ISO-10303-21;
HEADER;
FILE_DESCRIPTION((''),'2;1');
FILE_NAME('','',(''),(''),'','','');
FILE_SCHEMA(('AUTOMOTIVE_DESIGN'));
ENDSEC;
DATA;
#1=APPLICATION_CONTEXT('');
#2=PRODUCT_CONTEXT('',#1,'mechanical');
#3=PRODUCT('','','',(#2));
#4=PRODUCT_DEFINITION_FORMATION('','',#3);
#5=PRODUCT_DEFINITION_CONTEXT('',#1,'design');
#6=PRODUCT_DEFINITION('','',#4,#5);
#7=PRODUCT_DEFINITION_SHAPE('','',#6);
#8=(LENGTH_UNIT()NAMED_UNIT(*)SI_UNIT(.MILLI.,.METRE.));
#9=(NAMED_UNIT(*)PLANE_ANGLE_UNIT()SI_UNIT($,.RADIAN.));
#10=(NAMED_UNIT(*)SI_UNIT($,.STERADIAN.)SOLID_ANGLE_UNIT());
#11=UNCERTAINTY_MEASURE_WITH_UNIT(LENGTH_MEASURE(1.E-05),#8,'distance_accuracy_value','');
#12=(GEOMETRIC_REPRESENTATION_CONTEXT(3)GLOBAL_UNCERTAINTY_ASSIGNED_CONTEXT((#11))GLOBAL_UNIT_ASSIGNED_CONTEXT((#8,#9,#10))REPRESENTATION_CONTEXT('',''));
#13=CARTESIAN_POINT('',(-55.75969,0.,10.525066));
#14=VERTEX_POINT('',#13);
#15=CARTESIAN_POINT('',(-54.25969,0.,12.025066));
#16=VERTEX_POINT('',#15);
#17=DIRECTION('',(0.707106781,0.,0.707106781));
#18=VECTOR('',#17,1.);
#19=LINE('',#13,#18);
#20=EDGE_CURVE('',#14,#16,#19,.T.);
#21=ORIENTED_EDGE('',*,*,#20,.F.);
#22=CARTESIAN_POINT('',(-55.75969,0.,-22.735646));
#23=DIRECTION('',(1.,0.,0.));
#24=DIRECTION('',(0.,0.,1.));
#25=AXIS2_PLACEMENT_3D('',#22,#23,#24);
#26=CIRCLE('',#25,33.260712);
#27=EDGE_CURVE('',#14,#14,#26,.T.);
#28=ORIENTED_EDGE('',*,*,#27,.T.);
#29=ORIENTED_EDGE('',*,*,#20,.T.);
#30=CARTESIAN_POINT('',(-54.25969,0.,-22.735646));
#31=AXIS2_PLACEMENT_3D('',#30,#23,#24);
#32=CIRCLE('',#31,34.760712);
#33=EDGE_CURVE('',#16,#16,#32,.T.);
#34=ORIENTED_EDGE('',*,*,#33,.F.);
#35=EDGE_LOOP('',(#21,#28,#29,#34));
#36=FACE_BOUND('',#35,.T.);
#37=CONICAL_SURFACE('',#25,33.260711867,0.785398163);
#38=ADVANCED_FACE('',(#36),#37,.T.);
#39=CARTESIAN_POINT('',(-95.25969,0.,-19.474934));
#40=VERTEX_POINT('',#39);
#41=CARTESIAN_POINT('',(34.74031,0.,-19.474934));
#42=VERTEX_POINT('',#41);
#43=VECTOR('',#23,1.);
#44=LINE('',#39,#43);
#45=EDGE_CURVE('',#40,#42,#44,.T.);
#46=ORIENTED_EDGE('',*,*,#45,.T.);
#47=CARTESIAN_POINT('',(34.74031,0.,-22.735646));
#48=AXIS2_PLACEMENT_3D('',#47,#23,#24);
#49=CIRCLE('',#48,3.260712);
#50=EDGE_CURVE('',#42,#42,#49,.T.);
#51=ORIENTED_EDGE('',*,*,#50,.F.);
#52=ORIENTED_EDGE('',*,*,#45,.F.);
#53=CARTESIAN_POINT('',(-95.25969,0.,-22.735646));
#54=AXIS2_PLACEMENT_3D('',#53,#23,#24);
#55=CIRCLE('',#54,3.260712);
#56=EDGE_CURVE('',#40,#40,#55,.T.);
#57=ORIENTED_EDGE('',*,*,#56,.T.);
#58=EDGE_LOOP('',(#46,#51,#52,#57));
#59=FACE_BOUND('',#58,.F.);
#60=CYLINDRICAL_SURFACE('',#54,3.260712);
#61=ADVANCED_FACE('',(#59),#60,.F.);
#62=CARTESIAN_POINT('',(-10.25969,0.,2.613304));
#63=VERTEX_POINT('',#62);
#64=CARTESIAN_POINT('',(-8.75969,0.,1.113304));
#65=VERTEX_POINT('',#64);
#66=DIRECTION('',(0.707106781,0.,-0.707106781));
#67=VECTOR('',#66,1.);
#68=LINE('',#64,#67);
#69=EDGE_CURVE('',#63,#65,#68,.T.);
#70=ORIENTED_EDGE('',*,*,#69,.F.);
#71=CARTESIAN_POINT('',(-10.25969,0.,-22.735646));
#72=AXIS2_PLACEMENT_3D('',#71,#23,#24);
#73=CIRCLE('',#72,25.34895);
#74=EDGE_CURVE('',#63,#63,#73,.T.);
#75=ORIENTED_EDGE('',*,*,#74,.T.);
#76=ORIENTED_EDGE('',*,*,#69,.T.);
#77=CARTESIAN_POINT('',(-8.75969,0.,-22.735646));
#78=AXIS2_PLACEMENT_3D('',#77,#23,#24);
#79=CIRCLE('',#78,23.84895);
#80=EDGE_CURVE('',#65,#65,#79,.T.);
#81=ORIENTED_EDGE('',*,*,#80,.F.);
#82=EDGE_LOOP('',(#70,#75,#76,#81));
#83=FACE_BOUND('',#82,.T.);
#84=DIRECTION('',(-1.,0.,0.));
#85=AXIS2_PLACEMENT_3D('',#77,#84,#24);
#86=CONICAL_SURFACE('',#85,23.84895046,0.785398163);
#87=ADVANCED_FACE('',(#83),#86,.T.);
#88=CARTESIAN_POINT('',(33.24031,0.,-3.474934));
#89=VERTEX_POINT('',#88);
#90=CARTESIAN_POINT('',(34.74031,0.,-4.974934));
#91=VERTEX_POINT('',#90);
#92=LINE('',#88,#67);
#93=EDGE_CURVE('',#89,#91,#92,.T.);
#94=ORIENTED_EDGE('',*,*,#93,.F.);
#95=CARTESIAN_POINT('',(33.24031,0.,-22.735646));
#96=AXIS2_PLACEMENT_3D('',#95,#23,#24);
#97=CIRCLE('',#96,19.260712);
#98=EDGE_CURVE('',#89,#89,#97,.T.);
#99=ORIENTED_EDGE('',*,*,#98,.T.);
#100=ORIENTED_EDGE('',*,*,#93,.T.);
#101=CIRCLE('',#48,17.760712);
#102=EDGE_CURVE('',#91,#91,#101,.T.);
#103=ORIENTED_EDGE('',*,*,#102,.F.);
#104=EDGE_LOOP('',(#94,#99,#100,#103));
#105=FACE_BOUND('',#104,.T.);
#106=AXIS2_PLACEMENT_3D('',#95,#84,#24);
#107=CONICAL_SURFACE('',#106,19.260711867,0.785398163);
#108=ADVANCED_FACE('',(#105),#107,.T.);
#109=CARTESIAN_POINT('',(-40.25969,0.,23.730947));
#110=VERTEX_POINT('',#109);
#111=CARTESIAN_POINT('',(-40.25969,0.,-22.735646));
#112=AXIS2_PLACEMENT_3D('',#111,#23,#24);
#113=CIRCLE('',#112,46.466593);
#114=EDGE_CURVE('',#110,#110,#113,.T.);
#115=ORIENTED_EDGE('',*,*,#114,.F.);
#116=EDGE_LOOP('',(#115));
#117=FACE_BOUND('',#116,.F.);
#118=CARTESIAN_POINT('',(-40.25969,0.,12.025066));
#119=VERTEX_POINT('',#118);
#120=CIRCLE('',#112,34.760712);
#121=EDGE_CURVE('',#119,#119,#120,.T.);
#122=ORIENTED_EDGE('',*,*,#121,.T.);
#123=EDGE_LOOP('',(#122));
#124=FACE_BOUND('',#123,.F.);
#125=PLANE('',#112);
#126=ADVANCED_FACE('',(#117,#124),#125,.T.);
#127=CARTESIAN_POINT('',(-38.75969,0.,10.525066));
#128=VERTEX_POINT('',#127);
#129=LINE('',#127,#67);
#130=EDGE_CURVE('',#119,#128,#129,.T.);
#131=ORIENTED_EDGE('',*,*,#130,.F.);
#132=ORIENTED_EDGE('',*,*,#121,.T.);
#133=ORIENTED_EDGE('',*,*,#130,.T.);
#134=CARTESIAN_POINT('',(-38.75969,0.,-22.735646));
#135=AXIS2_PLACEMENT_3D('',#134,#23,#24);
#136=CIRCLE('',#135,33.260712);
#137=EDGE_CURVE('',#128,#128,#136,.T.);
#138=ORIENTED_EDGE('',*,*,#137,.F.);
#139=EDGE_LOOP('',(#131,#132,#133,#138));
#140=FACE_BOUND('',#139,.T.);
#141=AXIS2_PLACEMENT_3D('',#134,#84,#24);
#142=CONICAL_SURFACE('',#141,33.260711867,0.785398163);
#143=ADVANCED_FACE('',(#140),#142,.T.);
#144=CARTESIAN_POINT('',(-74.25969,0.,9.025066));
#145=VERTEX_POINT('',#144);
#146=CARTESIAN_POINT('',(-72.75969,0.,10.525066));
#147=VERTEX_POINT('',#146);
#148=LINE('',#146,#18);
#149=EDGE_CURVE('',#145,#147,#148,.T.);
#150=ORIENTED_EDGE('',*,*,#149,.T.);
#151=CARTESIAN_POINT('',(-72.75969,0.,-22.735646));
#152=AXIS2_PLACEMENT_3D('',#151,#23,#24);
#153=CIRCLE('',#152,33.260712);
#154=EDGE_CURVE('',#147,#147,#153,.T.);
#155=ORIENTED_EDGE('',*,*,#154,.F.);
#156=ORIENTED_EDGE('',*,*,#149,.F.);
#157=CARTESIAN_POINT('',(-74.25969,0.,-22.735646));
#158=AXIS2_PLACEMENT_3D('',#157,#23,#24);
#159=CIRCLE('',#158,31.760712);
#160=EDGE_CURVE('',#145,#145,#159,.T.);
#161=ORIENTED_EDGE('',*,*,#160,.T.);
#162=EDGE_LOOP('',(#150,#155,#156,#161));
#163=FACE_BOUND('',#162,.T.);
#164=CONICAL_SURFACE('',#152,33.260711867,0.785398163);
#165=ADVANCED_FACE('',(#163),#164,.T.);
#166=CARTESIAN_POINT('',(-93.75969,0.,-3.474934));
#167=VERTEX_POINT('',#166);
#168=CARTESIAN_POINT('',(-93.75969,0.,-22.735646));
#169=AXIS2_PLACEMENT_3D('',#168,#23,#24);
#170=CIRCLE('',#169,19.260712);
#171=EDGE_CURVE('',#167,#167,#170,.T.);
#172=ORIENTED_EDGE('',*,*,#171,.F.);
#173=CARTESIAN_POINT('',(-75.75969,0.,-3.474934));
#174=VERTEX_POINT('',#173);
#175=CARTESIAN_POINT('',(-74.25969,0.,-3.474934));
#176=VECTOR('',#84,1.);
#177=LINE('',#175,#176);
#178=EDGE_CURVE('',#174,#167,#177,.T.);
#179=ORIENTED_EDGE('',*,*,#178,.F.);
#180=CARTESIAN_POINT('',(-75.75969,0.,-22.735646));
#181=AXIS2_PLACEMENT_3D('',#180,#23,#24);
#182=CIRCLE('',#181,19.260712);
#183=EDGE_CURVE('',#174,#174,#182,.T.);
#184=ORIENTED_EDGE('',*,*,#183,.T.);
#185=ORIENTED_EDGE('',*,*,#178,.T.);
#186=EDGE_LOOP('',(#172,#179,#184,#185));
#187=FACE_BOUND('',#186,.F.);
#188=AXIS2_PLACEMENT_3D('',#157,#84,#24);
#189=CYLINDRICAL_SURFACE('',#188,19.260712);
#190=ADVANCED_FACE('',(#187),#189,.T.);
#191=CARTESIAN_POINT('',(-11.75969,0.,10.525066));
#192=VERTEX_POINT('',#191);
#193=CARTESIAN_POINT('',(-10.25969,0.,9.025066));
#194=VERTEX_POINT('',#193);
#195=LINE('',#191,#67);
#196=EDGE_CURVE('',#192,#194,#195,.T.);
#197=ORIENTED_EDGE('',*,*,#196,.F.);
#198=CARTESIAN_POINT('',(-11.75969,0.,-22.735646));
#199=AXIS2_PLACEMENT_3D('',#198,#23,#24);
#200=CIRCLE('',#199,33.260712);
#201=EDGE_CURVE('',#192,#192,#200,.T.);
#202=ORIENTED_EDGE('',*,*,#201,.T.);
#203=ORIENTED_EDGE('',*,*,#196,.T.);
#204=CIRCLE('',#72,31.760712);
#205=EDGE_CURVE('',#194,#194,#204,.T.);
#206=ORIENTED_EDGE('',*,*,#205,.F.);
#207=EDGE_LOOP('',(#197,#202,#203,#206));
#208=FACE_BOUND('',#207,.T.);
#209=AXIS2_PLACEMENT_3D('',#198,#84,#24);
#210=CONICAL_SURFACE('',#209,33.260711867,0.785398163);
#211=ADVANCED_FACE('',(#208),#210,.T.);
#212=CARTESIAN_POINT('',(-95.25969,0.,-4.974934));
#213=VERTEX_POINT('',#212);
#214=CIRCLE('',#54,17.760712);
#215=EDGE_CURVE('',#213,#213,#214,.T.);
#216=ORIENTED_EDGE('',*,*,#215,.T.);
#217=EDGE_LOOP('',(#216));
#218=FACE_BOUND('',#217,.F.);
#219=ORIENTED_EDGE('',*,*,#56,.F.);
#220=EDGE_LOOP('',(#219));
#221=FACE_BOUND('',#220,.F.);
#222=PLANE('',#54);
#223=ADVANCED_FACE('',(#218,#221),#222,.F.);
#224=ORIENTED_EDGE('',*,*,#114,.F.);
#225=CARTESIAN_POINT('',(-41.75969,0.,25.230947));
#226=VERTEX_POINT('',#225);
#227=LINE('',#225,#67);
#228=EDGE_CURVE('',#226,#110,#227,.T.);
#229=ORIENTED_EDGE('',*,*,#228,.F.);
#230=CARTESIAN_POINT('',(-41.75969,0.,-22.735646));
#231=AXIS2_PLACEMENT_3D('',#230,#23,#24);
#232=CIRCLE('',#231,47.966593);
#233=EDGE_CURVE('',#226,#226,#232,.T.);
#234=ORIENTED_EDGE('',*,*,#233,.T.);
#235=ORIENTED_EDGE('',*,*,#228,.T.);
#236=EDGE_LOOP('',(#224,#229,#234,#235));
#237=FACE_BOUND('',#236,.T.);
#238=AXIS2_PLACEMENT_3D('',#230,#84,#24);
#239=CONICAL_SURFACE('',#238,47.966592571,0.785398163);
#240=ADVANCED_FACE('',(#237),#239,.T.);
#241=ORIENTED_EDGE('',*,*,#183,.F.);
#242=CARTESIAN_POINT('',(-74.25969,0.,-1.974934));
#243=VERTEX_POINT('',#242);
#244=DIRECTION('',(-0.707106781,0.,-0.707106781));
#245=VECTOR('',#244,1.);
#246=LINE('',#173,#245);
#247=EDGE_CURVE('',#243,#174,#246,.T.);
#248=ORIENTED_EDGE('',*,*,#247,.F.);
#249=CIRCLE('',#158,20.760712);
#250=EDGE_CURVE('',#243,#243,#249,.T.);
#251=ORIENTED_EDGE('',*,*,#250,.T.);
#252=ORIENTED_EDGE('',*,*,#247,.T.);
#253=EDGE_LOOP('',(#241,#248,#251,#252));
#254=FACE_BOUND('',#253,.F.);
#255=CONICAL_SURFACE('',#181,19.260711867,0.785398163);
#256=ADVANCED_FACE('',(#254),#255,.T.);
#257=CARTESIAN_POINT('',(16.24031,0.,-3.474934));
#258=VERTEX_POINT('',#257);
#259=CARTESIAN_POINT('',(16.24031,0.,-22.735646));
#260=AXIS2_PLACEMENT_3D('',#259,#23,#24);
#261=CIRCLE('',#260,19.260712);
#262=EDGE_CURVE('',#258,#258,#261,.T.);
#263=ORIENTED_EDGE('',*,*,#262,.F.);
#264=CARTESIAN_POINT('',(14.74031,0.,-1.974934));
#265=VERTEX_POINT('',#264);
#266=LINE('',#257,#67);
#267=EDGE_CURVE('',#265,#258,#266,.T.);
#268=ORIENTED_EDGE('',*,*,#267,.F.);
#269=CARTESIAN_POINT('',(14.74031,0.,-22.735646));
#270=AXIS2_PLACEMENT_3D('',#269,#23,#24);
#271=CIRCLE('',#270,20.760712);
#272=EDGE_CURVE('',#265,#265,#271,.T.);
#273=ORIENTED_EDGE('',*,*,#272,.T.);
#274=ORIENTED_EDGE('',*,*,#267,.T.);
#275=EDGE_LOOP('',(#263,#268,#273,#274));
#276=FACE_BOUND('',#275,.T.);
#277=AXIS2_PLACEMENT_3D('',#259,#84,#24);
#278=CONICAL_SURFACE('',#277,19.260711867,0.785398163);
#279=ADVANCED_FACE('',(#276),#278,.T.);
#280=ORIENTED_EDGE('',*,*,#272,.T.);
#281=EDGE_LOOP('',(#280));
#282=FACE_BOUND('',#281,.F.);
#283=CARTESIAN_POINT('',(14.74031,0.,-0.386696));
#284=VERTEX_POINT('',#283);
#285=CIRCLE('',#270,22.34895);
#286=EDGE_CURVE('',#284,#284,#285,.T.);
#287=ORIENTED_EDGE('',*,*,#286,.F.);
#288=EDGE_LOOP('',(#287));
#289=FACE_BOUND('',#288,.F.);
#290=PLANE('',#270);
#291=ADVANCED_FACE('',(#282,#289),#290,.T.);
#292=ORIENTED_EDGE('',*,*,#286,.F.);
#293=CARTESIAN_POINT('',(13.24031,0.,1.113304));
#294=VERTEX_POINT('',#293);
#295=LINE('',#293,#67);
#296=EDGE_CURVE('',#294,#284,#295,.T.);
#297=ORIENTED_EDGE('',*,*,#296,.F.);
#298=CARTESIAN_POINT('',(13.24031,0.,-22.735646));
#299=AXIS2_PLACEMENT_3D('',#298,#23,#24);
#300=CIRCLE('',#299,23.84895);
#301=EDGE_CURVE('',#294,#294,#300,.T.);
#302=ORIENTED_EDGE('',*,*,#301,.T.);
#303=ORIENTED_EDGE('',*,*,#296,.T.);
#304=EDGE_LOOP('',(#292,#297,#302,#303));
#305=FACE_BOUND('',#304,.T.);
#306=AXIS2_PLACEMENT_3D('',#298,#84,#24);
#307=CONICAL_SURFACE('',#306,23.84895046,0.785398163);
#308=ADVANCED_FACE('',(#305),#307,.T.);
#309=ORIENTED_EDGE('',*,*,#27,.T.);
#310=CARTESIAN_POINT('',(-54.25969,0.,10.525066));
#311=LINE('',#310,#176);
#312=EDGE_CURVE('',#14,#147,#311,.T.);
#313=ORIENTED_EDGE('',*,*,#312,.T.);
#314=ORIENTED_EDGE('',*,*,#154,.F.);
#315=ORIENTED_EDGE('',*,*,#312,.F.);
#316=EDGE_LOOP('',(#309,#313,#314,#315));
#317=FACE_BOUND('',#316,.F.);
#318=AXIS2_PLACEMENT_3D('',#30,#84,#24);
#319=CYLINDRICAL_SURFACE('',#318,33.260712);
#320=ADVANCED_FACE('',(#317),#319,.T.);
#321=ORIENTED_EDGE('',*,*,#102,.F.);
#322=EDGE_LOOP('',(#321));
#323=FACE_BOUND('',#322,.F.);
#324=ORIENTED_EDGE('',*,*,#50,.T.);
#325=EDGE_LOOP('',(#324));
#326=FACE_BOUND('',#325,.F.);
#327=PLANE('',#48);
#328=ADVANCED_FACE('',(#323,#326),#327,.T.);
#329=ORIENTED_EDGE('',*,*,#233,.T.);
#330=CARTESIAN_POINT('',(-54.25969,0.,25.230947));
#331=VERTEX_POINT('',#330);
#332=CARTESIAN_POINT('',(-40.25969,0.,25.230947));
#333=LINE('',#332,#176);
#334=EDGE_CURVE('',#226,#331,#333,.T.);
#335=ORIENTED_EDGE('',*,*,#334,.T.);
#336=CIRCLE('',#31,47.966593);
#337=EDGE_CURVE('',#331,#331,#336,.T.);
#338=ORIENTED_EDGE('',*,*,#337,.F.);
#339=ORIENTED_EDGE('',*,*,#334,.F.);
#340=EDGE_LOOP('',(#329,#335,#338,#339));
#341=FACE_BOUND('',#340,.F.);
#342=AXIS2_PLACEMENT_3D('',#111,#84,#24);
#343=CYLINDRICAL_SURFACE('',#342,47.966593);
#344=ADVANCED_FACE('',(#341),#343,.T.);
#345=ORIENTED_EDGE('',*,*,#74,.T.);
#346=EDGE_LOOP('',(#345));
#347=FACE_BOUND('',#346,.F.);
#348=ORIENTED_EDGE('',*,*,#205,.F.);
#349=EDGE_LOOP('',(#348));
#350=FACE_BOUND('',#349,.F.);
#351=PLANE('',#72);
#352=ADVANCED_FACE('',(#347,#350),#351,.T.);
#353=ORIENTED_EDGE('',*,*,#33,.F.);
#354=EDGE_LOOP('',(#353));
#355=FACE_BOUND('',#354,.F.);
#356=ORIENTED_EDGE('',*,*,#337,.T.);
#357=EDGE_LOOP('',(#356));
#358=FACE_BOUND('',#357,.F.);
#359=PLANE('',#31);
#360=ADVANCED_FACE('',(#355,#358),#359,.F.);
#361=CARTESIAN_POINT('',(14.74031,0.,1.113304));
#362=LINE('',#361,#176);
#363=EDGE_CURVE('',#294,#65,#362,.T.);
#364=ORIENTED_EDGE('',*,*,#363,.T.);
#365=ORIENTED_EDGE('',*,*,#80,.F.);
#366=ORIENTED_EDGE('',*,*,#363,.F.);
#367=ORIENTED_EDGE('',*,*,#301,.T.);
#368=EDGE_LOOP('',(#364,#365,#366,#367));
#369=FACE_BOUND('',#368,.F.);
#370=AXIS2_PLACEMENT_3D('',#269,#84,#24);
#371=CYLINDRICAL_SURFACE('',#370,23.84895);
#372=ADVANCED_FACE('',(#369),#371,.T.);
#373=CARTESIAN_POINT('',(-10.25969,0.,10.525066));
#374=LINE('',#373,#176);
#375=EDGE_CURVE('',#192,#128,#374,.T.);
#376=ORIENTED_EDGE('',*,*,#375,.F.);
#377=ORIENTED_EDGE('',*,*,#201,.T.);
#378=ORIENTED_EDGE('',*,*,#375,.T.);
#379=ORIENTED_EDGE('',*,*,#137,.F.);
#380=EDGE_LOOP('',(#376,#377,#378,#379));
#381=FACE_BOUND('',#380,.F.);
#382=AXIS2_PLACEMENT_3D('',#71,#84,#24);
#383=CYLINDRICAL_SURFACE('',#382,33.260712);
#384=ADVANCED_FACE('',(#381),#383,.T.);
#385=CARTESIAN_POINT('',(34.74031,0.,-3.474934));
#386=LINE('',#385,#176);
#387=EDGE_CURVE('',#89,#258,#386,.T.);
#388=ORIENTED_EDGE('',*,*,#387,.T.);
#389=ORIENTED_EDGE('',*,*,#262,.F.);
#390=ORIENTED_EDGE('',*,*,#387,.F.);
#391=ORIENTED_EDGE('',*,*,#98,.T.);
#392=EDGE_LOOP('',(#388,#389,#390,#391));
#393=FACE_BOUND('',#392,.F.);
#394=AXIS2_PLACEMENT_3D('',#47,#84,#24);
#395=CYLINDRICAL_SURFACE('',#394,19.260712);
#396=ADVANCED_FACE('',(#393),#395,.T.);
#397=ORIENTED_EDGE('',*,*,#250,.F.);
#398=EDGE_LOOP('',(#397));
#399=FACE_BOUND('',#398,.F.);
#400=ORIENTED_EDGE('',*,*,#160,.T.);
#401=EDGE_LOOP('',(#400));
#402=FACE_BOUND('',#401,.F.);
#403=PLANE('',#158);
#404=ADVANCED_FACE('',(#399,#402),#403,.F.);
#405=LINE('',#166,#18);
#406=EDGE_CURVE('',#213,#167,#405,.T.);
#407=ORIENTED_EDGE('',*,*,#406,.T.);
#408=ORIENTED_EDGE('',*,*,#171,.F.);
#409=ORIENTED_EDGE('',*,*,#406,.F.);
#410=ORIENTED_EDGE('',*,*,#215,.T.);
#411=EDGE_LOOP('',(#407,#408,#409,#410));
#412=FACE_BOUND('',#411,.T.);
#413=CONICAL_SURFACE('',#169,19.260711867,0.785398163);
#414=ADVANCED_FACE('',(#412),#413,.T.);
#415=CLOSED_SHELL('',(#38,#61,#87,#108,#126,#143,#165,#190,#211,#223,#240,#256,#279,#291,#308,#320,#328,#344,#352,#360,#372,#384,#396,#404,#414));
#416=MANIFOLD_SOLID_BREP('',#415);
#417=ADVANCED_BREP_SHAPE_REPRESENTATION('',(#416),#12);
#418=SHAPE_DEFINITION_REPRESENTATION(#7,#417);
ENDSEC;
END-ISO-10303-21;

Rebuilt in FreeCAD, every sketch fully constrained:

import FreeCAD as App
import Part
import Sketcher

V = App.Vector


def edges_at(feature, points):
    """Names of the edges that pass closest to the given points."""
    edges = feature.Shape.Edges
    near = lambda p: min(range(len(edges)), key=lambda i: edges[i].distToShape(Part.Vertex(*p))[0])
    return sorted({f"Edge{near(p) + 1}" for p in points})

doc = App.newDocument("Part")
body = doc.addObject("PartDesign::Body", "Body")

# Sketch on XZ plane
sketch1 = body.newObject("Sketcher::SketchObject", "Sketch")
sketch1.AttachmentSupport = (doc.getObject("XZ_Plane"), [""])
sketch1.MapMode = "FlatFace"
sketch1.addGeometry([
    Part.LineSegment(V(-95.3, -3.5, 0), V(-95.3, -19.5, 0)),  # 0
    Part.LineSegment(V(-95.3, -19.5, 0), V(34.7, -19.5, 0)),  # 1
    Part.LineSegment(V(34.7, -19.5, 0), V(34.7, -3.5, 0)),  # 2
    Part.LineSegment(V(34.7, -3.5, 0), V(14.7, -3.5, 0)),  # 3
    Part.LineSegment(V(14.7, -3.5, 0), V(14.7, 1.1, 0)),  # 4
    Part.LineSegment(V(14.7, 1.1, 0), V(-10.3, 1.1, 0)),  # 5
    Part.LineSegment(V(-10.3, 1.1, 0), V(-10.3, 10.5, 0)),  # 6
    Part.LineSegment(V(-10.3, 10.5, 0), V(-40.3, 10.5, 0)),  # 7
    Part.LineSegment(V(-40.3, 10.5, 0), V(-40.3, 25.2, 0)),  # 8
    Part.LineSegment(V(-40.3, 25.2, 0), V(-54.3, 25.2, 0)),  # 9
    Part.LineSegment(V(-54.3, 25.2, 0), V(-54.3, 10.5, 0)),  # 10
    Part.LineSegment(V(-54.3, 10.5, 0), V(-74.3, 10.5, 0)),  # 11
    Part.LineSegment(V(-74.3, 10.5, 0), V(-74.3, -3.5, 0)),  # 12
    Part.LineSegment(V(-74.3, -3.5, 0), V(-95.3, -3.5, 0)),  # 13
], False)
sketch1.addGeometry(Part.LineSegment(V(-95.3, -22.7, 0), V(34.7, -22.7, 0)), True)  # axis
sketch1.addConstraint([
    Sketcher.Constraint("Coincident", 0, 2, 1, 1),
    Sketcher.Constraint("Coincident", 1, 2, 2, 1),
    Sketcher.Constraint("Coincident", 2, 2, 3, 1),
    Sketcher.Constraint("Coincident", 3, 2, 4, 1),
    Sketcher.Constraint("Coincident", 4, 2, 5, 1),
    Sketcher.Constraint("Coincident", 5, 2, 6, 1),
    Sketcher.Constraint("Coincident", 6, 2, 7, 1),
    Sketcher.Constraint("Coincident", 7, 2, 8, 1),
    Sketcher.Constraint("Coincident", 8, 2, 9, 1),
    Sketcher.Constraint("Coincident", 9, 2, 10, 1),
    Sketcher.Constraint("Coincident", 10, 2, 11, 1),
    Sketcher.Constraint("Coincident", 11, 2, 12, 1),
    Sketcher.Constraint("Coincident", 12, 2, 13, 1),
    Sketcher.Constraint("Coincident", 13, 2, 0, 1),
    Sketcher.Constraint("Vertical", 0),
    Sketcher.Constraint("Horizontal", 1),
    Sketcher.Constraint("Vertical", 2),
    Sketcher.Constraint("Horizontal", 3),
    Sketcher.Constraint("Vertical", 4),
    Sketcher.Constraint("Horizontal", 5),
    Sketcher.Constraint("Vertical", 6),
    Sketcher.Constraint("Horizontal", 7),
    Sketcher.Constraint("Vertical", 8),
    Sketcher.Constraint("Horizontal", 9),
    Sketcher.Constraint("Vertical", 10),
    Sketcher.Constraint("Horizontal", 11),
    Sketcher.Constraint("Vertical", 12),
    Sketcher.Constraint("Horizontal", 13),
    Sketcher.Constraint("Horizontal", 14),
    Sketcher.Constraint("Horizontal", 7, 2, 10, 2),
    Sketcher.Constraint("Horizontal", 3, 2, 12, 2),
    Sketcher.Constraint("Vertical", 13, 2, 14, 1),
    Sketcher.Constraint("Vertical", 2, 2, 14, 2),
    Sketcher.Constraint("Equal", 3, 11),
    Sketcher.Constraint("Equal", 9, 12),
    Sketcher.Constraint("DistanceX", 1, 1, 1, 2, 130.0),
    Sketcher.Constraint("DistanceX", 3, 2, 3, 1, 20.0),
    Sketcher.Constraint("DistanceX", 5, 2, 5, 1, 25.0),
    Sketcher.Constraint("DistanceX", 7, 2, 7, 1, 30.0),
    Sketcher.Constraint("DistanceX", 9, 2, 9, 1, 14.0),
    Sketcher.Constraint("DistanceY", 0, 2, 0, 1, 16.0),
    Sketcher.Constraint("DistanceY", 4, 1, 4, 2, 4.588239),
    Sketcher.Constraint("DistanceY", 8, 1, 8, 2, 14.705881),
    Sketcher.Constraint("DistanceX", 0, 2, -1, 1, 95.25969),
    Sketcher.Constraint("DistanceY", 14, 1, 0, 2, 3.260712),
    Sketcher.Constraint("DistanceY", 0, 2, -1, 1, 19.474934),
])
revolution = body.newObject("PartDesign::Revolution", "Revolution")
revolution.Profile = sketch1
revolution.ReferenceAxis = (sketch1, ["Axis0"])
revolution.Angle = 360
doc.recompute()

chamfer = body.newObject("PartDesign::Chamfer", "Chamfer")
chamfer.Base = (revolution, edges_at(revolution, [(-95.26, 0, -41.996)]))
chamfer.Size = 1.5
doc.recompute()

chamfer2 = body.newObject("PartDesign::Chamfer", "Chamfer001")
chamfer2.Base = (chamfer, edges_at(chamfer, [(-74.26, 0, -55.996)]))
chamfer2.Size = 1.5
doc.recompute()

chamfer3 = body.newObject("PartDesign::Chamfer", "Chamfer002")
chamfer3.Base = (chamfer2, edges_at(chamfer2, [(-40.26, 0, -70.702)]))
chamfer3.Size = 1.5
doc.recompute()

chamfer4 = body.newObject("PartDesign::Chamfer", "Chamfer003")
chamfer4.Base = (chamfer3, edges_at(chamfer3, [(-10.26, 0, -55.996)]))
chamfer4.Size = 1.5
doc.recompute()

chamfer5 = body.newObject("PartDesign::Chamfer", "Chamfer004")
chamfer5.Base = (chamfer4, edges_at(chamfer4, [(14.74, 0, -46.585)]))
chamfer5.Size = 1.5
doc.recompute()

chamfer6 = body.newObject("PartDesign::Chamfer", "Chamfer005")
chamfer6.Base = (chamfer5, edges_at(chamfer5, [(34.74, 0, -41.996)]))
chamfer6.Size = 1.5
doc.recompute()

chamfer7 = body.newObject("PartDesign::Chamfer", "Chamfer006")
chamfer7.Base = (chamfer6, edges_at(chamfer6, [(-54.26, 0, -55.996)]))
chamfer7.Size = 1.5
doc.recompute()

chamfer8 = body.newObject("PartDesign::Chamfer", "Chamfer007")
chamfer8.Base = (chamfer7, edges_at(chamfer7, [(-74.26, 0, -41.996)]))
chamfer8.Size = 1.5
doc.recompute()

chamfer9 = body.newObject("PartDesign::Chamfer", "Chamfer008")
chamfer9.Base = (chamfer8, edges_at(chamfer8, [(-40.26, 0, -55.996)]))
chamfer9.Size = 1.5
doc.recompute()

chamfer10 = body.newObject("PartDesign::Chamfer", "Chamfer009")
chamfer10.Base = (chamfer9, edges_at(chamfer9, [(-10.26, 0, -46.585)]))
chamfer10.Size = 1.5
doc.recompute()

chamfer11 = body.newObject("PartDesign::Chamfer", "Chamfer010")
chamfer11.Base = (chamfer10, edges_at(chamfer10, [(14.74, 0, -41.996)]))
chamfer11.Size = 1.5

doc.recompute()
